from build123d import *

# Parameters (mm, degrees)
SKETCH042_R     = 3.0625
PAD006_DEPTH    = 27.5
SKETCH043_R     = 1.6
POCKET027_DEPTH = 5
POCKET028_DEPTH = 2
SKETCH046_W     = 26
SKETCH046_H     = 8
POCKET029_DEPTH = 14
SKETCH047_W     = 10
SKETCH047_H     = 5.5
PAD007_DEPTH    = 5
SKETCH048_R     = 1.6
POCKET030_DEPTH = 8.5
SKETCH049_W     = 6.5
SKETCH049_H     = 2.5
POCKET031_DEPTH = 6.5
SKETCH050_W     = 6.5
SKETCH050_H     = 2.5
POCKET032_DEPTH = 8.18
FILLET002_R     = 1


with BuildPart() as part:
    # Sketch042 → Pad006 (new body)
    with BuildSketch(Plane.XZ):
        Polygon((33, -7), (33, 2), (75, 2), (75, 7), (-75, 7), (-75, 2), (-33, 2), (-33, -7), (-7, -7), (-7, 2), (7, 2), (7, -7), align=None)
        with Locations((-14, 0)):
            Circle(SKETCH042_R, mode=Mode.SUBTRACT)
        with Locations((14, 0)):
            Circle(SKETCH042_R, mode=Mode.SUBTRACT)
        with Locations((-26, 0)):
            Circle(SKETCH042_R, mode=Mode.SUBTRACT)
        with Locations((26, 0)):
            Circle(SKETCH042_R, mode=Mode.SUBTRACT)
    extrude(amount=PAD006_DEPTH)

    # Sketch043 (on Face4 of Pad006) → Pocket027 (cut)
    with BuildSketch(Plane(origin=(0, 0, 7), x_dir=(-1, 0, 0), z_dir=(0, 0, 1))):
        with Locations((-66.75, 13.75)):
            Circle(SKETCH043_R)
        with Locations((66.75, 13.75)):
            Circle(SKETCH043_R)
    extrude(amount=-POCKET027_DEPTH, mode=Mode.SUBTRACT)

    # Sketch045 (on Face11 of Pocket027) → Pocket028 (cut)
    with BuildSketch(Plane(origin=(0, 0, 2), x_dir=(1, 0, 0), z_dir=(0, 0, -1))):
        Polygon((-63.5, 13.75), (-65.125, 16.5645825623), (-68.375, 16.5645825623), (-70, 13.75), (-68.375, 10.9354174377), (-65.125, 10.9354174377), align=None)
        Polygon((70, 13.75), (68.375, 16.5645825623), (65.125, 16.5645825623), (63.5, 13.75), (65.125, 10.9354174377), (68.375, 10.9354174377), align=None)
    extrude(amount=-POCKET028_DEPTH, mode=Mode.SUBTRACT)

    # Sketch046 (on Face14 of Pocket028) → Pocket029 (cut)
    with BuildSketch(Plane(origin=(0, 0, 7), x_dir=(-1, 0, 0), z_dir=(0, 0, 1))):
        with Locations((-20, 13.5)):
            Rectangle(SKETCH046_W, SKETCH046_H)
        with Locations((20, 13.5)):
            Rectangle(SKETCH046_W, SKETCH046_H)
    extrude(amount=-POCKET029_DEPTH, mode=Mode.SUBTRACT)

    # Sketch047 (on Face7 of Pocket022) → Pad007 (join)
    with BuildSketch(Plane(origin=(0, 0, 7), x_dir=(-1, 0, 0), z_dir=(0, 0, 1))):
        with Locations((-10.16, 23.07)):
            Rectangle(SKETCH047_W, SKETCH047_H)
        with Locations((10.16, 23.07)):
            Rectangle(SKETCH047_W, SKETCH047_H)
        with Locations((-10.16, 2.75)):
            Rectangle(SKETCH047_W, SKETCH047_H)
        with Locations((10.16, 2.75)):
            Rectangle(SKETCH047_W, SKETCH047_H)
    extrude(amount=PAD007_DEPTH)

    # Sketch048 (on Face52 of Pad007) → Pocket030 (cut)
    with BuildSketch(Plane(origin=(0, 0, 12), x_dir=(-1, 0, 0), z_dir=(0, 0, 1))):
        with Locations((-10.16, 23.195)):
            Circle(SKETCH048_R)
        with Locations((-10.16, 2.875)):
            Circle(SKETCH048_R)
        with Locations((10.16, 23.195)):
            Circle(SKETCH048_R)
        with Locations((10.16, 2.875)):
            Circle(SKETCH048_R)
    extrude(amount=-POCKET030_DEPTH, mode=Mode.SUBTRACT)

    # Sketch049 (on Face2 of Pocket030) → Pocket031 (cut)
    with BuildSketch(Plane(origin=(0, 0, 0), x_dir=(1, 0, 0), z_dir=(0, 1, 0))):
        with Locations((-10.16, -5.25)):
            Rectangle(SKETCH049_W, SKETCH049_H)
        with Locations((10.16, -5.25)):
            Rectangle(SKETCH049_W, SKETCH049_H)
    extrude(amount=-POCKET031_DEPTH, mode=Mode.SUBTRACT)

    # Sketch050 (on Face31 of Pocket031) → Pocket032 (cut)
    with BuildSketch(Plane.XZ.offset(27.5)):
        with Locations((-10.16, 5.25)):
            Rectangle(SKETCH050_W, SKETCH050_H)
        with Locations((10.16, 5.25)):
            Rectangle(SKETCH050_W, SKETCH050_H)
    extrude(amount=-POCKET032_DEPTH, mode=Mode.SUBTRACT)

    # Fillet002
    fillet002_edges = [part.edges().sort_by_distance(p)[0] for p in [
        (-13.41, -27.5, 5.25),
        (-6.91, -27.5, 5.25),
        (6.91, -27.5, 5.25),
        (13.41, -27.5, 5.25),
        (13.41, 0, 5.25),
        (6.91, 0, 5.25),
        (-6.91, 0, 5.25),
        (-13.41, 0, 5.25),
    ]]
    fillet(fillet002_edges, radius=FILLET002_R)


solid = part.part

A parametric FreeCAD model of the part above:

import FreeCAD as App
import Part
import Sketcher
from FreeCAD import Vector
Q = App.Units.Quantity


def edges_at(feature, points):
    """Names of the edges that pass closest to the given points."""
    edges = feature.Shape.Edges
    near = lambda p: min(range(len(edges)), key=lambda i: edges[i].distToShape(Part.Vertex(*p))[0])
    return sorted({f"Edge{near(p) + 1}" for p in points})


def add_polygon(sketch, points):
    """Adds a closed chain of lines whose ends are joined by coincident constraints."""
    first, n = sketch.GeometryCount, len(points)
    for a, b in zip(points, points[1:] + points[:1]):
        sketch.addGeometry(Part.LineSegment(App.Vector(*a, 0), App.Vector(*b, 0)), False)
    for i in range(n):
        sketch.addConstraint(Sketcher.Constraint("Coincident", first + i, 2, first + (i + 1) % n, 1))

doc = App.newDocument("Part")
params = doc.addObject("Spreadsheet::Sheet", "Params")
for row, (alias, value) in enumerate([
    ("sketch1_width", "42 mm"),
    ("sketch1_width2", "150 mm"),
    ("sketch1_width3", "26 mm"),
    ("sketch1_height", "9 mm"),
    ("sketch1_height2", "5 mm"),
    ("pad1_length", "27.5 mm"),
    ("sketch2_diameter", "3.2 mm"),
    ("pocket1_length", "5 mm"),
    ("sketch3_width", "3.25 mm"),
    ("pocket2_length", "2 mm"),
    ("sketch4_width", "26 mm"),
    ("sketch4_height", "8 mm"),
    ("pocket3_length", "14 mm"),
    ("sketch5_width", "10 mm"),
    ("sketch5_height", "5.5 mm"),
    ("pad2_length", "5 mm"),
    ("sketch6_diameter", "3.2 mm"),
    ("pocket4_length", "8.5 mm"),
    ("sketch7_width", "6.5 mm"),
    ("sketch7_height", "2.5 mm"),
    ("pocket5_length", "6.5 mm"),
    ("sketch8_width", "6.5 mm"),
    ("sketch8_height", "2.5 mm"),
    ("pocket6_length", "8.18 mm"),
    ("fillet_radius", "1 mm"),
], start=1):
    params.set(f"A{row}", alias)
    params.set(f"B{row}", "=" + value)
    params.setAlias(f"B{row}", alias)

body = doc.addObject("PartDesign::Body", "Body")

# Sketch on XZ plane
sketch1 = body.newObject("Sketcher::SketchObject", "Sketch")
sketch1.AttachmentSupport = (doc.getObject("XZ_Plane"), [""])
sketch1.MapMode = "FlatFace"
add_polygon(sketch1, [(33, -7), (33, 2), (75, 2), (75, 7), (-75, 7), (-75, 2), (-33, 2), (-33, -7), (-7, -7), (-7, 2), (7, 2), (7, -7)])  # lines 0-11
sketch1.addGeometry(Part.Circle(Vector(-26, 0, 0), Vector(0, 0, 1), 3.0625), False)  # 12
sketch1.addGeometry(Part.Circle(Vector(-14, 0, 0), Vector(0, 0, 1), 3.0625), False)  # 13
sketch1.addGeometry(Part.Circle(Vector(14, 0, 0), Vector(0, 0, 1), 3.0625), False)  # 14
sketch1.addGeometry(Part.Circle(Vector(26, 0, 0), Vector(0, 0, 1), 3.0625), False)  # 15
sketch1.addConstraint([
    Sketcher.Constraint("Vertical", 0),
    Sketcher.Constraint("Horizontal", 1),
    Sketcher.Constraint("Vertical", 2),
    Sketcher.Constraint("Horizontal", 3),
    Sketcher.Constraint("Vertical", 4),
    Sketcher.Constraint("Horizontal", 5),
    Sketcher.Constraint("Vertical", 6),
    Sketcher.Constraint("Horizontal", 7),
    Sketcher.Constraint("Vertical", 8),
    Sketcher.Constraint("Horizontal", 9),
    Sketcher.Constraint("Vertical", 10),
    Sketcher.Constraint("Horizontal", 11),
    Sketcher.Constraint("Equal", 12, 13),
    Sketcher.Constraint("Equal", 13, 14),
    Sketcher.Constraint("Equal", 14, 15),
    Sketcher.Constraint("Symmetric", 13, 3, 14, 3, -1, 1),
    Sketcher.Constraint("Symmetric", 12, 3, 15, 3, -1, 1),
    Sketcher.Constraint("Symmetric", 1, 2, 4, 2, -2),
    Sketcher.Constraint("Symmetric", 7, 2, 10, 2, -2),
    Sketcher.Constraint("PointOnObject", 12, 3, -1),
    Sketcher.Constraint("PointOnObject", 13, 3, -1),
    Sketcher.Constraint("Horizontal", 5, 2, 8, 2),
    Sketcher.Constraint("Equal", 1, 5),
    Sketcher.Constraint("DistanceX", 1, 1, 1, 2, Q("42 mm")),
    Sketcher.Constraint("DistanceX", 3, 2, 3, 1, Q("150 mm")),
    Sketcher.Constraint("DistanceX", 7, 1, 7, 2, Q("26 mm")),
    Sketcher.Constraint("DistanceY", 0, 1, 0, 2, Q("9 mm")),
    Sketcher.Constraint("DistanceY", 2, 1, 2, 2, Q("5 mm")),
    Sketcher.Constraint("Diameter", 12, Q("6.125 mm")),
    Sketcher.Constraint("DistanceX", 12, 3, -1, 1, Q("26 mm")),
    Sketcher.Constraint("DistanceX", 13, 3, -1, 1, Q("14 mm")),
    Sketcher.Constraint("DistanceY", -1, 1, 0, 2, Q("2 mm")),
])
sketch1.setExpression("Constraints[35]", "Params.sketch1_width")
sketch1.setExpression("Constraints[36]", "Params.sketch1_width2")
sketch1.setExpression("Constraints[37]", "Params.sketch1_width3")
sketch1.setExpression("Constraints[38]", "Params.sketch1_height")
sketch1.setExpression("Constraints[39]", "Params.sketch1_height2")
pad1 = body.newObject("PartDesign::Pad", "Pad")
pad1.Profile = sketch1
pad1.setExpression("Length", "Params.pad1_length")

# Sketch on XY plane
sketch2 = body.newObject("Sketcher::SketchObject", "Sketch001")
sketch2.AttachmentSupport = (doc.getObject("XY_Plane"), [""])
sketch2.MapMode = "FlatFace"
sketch2.AttachmentOffset = App.Placement(Vector(0, 0, 7), App.Rotation())
sketch2.addGeometry([
    Part.Circle(Vector(66.75, -13.75, 0), Vector(0, 0, 1), 1.6),
    Part.Circle(Vector(-66.75, -13.75, 0), Vector(0, 0, 1), 1.6),
], False)
sketch2.addConstraint([
    Sketcher.Constraint("Equal", 0, 1),
    Sketcher.Constraint("Symmetric", 0, 3, 1, 3, -2),
    Sketcher.Constraint("Diameter", 0, Q("3.2 mm")),
    Sketcher.Constraint("DistanceX", 1, 3, 0, 3, Q("133.5 mm")),
    Sketcher.Constraint("DistanceY", 0, 3, -1, 1, Q("13.75 mm")),
])
sketch2.setExpression("Constraints[2]", "Params.sketch2_diameter")
pocket1 = body.newObject("PartDesign::Pocket", "Pocket")
pocket1.Profile = sketch2
pocket1.setExpression("Length", "Params.pocket1_length")

# Sketch on XY plane
sketch3 = body.newObject("Sketcher::SketchObject", "Sketch002")
sketch3.AttachmentSupport = (doc.getObject("XY_Plane"), [""])
sketch3.MapMode = "FlatFace"
sketch3.AttachmentOffset = App.Placement(Vector(0, 0, 2), App.Rotation())
add_polygon(sketch3, [(-63.5, -13.75), (-65.125, -16.564583), (-68.375, -16.564583), (-70, -13.75), (-68.375, -10.935417), (-65.125, -10.935417)])  # lines 0-5
add_polygon(sketch3, [(70, -13.75), (68.375, -16.564583), (65.125, -16.564583), (63.5, -13.75), (65.125, -10.935417), (68.375, -10.935417)])  # lines 6-11
sketch3.addConstraint([
    Sketcher.Constraint("Horizontal", 1),
    Sketcher.Constraint("Horizontal", 4),
    Sketcher.Constraint("Horizontal", 7),
    Sketcher.Constraint("Horizontal", 10),
    Sketcher.Constraint("Symmetric", 1, 2, 6, 2, -2),
    Sketcher.Constraint("Symmetric", 5, 2, 8, 2, -2),
    Sketcher.Constraint("Symmetric", 4, 2, 9, 2, -2),
    Sketcher.Constraint("Symmetric", 2, 2, 11, 2, -2),
    Sketcher.Constraint("Parallel", 0, 3),
    Sketcher.Constraint("Parallel", 2, 5),
    Sketcher.Constraint("Parallel", 3, 6),
    Sketcher.Constraint("Parallel", 5, 8),
    Sketcher.Constraint("Parallel", 8, 11),
    Sketcher.Constraint("Horizontal", 2, 2, 5, 2),
    Sketcher.Constraint("Vertical", 1, 2, 3, 2),
    Sketcher.Constraint("Angle", 0, Q("-120 deg")),
    Sketcher.Constraint("DistanceX", 2, 2, -1, 1, Q("70 mm")),
    Sketcher.Constraint("DistanceX", 5, 2, 8, 2, Q("127 mm")),
    Sketcher.Constraint("DistanceX", 1, 2, 1, 1, Q("3.25 mm")),
    Sketcher.Constraint("DistanceY", 2, 2, -1, 1, Q("13.75 mm")),
])
sketch3.setExpression("Constraints[30]", "Params.sketch3_width")
pocket2 = body.newObject("PartDesign::Pocket", "Pocket001")
pocket2.Profile = sketch3
pocket2.setExpression("Length", "Params.pocket2_length")
pocket2.Reversed = True

# Sketch on XY plane
sketch4 = body.newObject("Sketcher::SketchObject", "Sketch003")
sketch4.AttachmentSupport = (doc.getObject("XY_Plane"), [""])
sketch4.MapMode = "FlatFace"
sketch4.AttachmentOffset = App.Placement(Vector(0, 0, 7), App.Rotation())
add_polygon(sketch4, [(33, -17.5), (33, -9.5), (7, -9.5), (7, -17.5)])  # lines 0-3
add_polygon(sketch4, [(-7, -17.5), (-7, -9.5), (-33, -9.5), (-33, -17.5)])  # lines 4-7
sketch4.addConstraint([
    Sketcher.Constraint("Vertical", 0),
    Sketcher.Constraint("Horizontal", 1),
    Sketcher.Constraint("Vertical", 2),
    Sketcher.Constraint("Horizontal", 3),
    Sketcher.Constraint("Vertical", 4),
    Sketcher.Constraint("Horizontal", 5),
    Sketcher.Constraint("Vertical", 6),
    Sketcher.Constraint("Horizontal", 7),
    Sketcher.Constraint("Symmetric", 1, 2, 4, 2, -2),
    Sketcher.Constraint("Symmetric", 3, 2, 6, 2, -2),
    Sketcher.Constraint("DistanceX", 1, 2, 1, 1, Q("26 mm")),
    Sketcher.Constraint("DistanceY", 0, 1, 0, 2, Q("8 mm")),
    Sketcher.Constraint("DistanceX", -1, 1, 0, 2, Q("33 mm")),
    Sketcher.Constraint("DistanceY", 0, 2, -1, 1, Q("9.5 mm")),
])
sketch4.setExpression("Constraints[18]", "Params.sketch4_width")
sketch4.setExpression("Constraints[19]", "Params.sketch4_height")
pocket3 = body.newObject("PartDesign::Pocket", "Pocket002")
pocket3.Profile = sketch4
pocket3.setExpression("Length", "Params.pocket3_length")

# Sketch on XY plane
sketch5 = body.newObject("Sketcher::SketchObject", "Sketch004")
sketch5.AttachmentSupport = (doc.getObject("XY_Plane"), [""])
sketch5.MapMode = "FlatFace"
sketch5.AttachmentOffset = App.Placement(Vector(0, 0, 7), App.Rotation())
add_polygon(sketch5, [(15.16, -25.82), (15.16, -20.32), (5.16, -20.32), (5.16, -25.82)])  # lines 0-3
add_polygon(sketch5, [(-5.16, -25.82), (-5.16, -20.32), (-15.16, -20.32), (-15.16, -25.82)])  # lines 4-7
add_polygon(sketch5, [(15.16, -5.5), (15.16, 0), (5.16, 0), (5.16, -5.5)])  # lines 8-11
add_polygon(sketch5, [(-5.16, -5.5), (-5.16, 0), (-15.16, 0), (-15.16, -5.5)])  # lines 12-15
sketch5.addConstraint([
    Sketcher.Constraint("Vertical", 0),
    Sketcher.Constraint("Horizontal", 1),
    Sketcher.Constraint("Vertical", 2),
    Sketcher.Constraint("Horizontal", 3),
    Sketcher.Constraint("Vertical", 4),
    Sketcher.Constraint("Horizontal", 5),
    Sketcher.Constraint("Vertical", 6),
    Sketcher.Constraint("Horizontal", 7),
    Sketcher.Constraint("Vertical", 8),
    Sketcher.Constraint("Horizontal", 9),
    Sketcher.Constraint("Vertical", 10),
    Sketcher.Constraint("Horizontal", 11),
    Sketcher.Constraint("Vertical", 12),
    Sketcher.Constraint("Horizontal", 13),
    Sketcher.Constraint("Vertical", 14),
    Sketcher.Constraint("Horizontal", 15),
    Sketcher.Constraint("Symmetric", 9, 2, 12, 2, -1, 1),
    Sketcher.Constraint("Symmetric", 1, 2, 4, 2, -2),
    Sketcher.Constraint("Symmetric", 3, 2, 6, 2, -2),
    Sketcher.Constraint("Symmetric", 8, 2, 13, 2, -2),
    Sketcher.Constraint("Horizontal", 11, 2, 14, 2),
    Sketcher.Constraint("Vertical", 3, 2, 8, 2),
    Sketcher.Constraint("Vertical", 2, 2, 9, 2),
    Sketcher.Constraint("Equal", 6, 8),
    Sketcher.Constraint("DistanceX", 1, 2, 1, 1, Q("10 mm")),
    Sketcher.Constraint("DistanceY", 0, 1, 0, 2, Q("5.5 mm")),
    Sketcher.Constraint("DistanceX", -1, 1, 0, 2, Q("15.16 mm")),
    Sketcher.Constraint("DistanceY", 0, 2, -1, 1, Q("20.32 mm")),
])
sketch5.setExpression("Constraints[40]", "Params.sketch5_width")
sketch5.setExpression("Constraints[41]", "Params.sketch5_height")
pad2 = body.newObject("PartDesign::Pad", "Pad001")
pad2.Profile = sketch5
pad2.setExpression("Length", "Params.pad2_length")

# Sketch on XY plane
sketch6 = body.newObject("Sketcher::SketchObject", "Sketch005")
sketch6.AttachmentSupport = (doc.getObject("XY_Plane"), [""])
sketch6.MapMode = "FlatFace"
sketch6.AttachmentOffset = App.Placement(Vector(0, 0, 12), App.Rotation())
sketch6.addGeometry([
    Part.Circle(Vector(10.16, -23.195, 0), Vector(0, 0, 1), 1.6),
    Part.Circle(Vector(10.16, -2.875, 0), Vector(0, 0, 1), 1.6),
    Part.Circle(Vector(-10.16, -23.195, 0), Vector(0, 0, 1), 1.6),
    Part.Circle(Vector(-10.16, -2.875, 0), Vector(0, 0, 1), 1.6),
], False)
sketch6.addConstraint([
    Sketcher.Constraint("Equal", 0, 1),
    Sketcher.Constraint("Equal", 1, 2),
    Sketcher.Constraint("Equal", 2, 3),
    Sketcher.Constraint("Symmetric", 0, 3, 2, 3, -2),
    Sketcher.Constraint("Symmetric", 1, 3, 3, 3, -2),
    Sketcher.Constraint("Vertical", 0, 3, 1, 3),
    Sketcher.Constraint("Diameter", 0, Q("3.2 mm")),
    Sketcher.Constraint("DistanceX", -1, 1, 0, 3, Q("10.16 mm")),
    Sketcher.Constraint("DistanceY", 0, 3, 1, 3, Q("20.32 mm")),
    Sketcher.Constraint("DistanceY", 0, 3, -1, 1, Q("23.195 mm")),
])
sketch6.setExpression("Constraints[6]", "Params.sketch6_diameter")
pocket4 = body.newObject("PartDesign::Pocket", "Pocket003")
pocket4.Profile = sketch6
pocket4.setExpression("Length", "Params.pocket4_length")

# Sketch on XZ plane
sketch7 = body.newObject("Sketcher::SketchObject", "Sketch006")
sketch7.AttachmentSupport = (doc.getObject("XZ_Plane"), [""])
sketch7.MapMode = "FlatFace"
add_polygon(sketch7, [(-13.41, 4), (-13.41, 6.5), (-6.91, 6.5), (-6.91, 4)])  # lines 0-3
add_polygon(sketch7, [(6.91, 4), (6.91, 6.5), (13.41, 6.5), (13.41, 4)])  # lines 4-7
sketch7.addConstraint([
    Sketcher.Constraint("Vertical", 0),
    Sketcher.Constraint("Horizontal", 1),
    Sketcher.Constraint("Vertical", 2),
    Sketcher.Constraint("Horizontal", 3),
    Sketcher.Constraint("Vertical", 4),
    Sketcher.Constraint("Horizontal", 5),
    Sketcher.Constraint("Vertical", 6),
    Sketcher.Constraint("Horizontal", 7),
    Sketcher.Constraint("Symmetric", 1, 2, 4, 2, -2),
    Sketcher.Constraint("Symmetric", 3, 2, 6, 2, -2),
    Sketcher.Constraint("DistanceX", 1, 1, 1, 2, Q("6.5 mm")),
    Sketcher.Constraint("DistanceY", 0, 1, 0, 2, Q("2.5 mm")),
    Sketcher.Constraint("DistanceY", -1, 1, 2, 2, Q("4 mm")),
    Sketcher.Constraint("DistanceX", 0, 2, -1, 1, Q("13.41 mm")),
])
sketch7.setExpression("Constraints[18]", "Params.sketch7_width")
sketch7.setExpression("Constraints[19]", "Params.sketch7_height")
pocket5 = body.newObject("PartDesign::Pocket", "Pocket004")
pocket5.Profile = sketch7
pocket5.setExpression("Length", "Params.pocket5_length")
pocket5.Reversed = True

# Sketch on XZ plane
sketch8 = body.newObject("Sketcher::SketchObject", "Sketch007")
sketch8.AttachmentSupport = (doc.getObject("XZ_Plane"), [""])
sketch8.MapMode = "FlatFace"
sketch8.AttachmentOffset = App.Placement(Vector(0, 0, 27.5), App.Rotation())
add_polygon(sketch8, [(-13.41, 6.5), (-13.41, 4), (-6.91, 4), (-6.91, 6.5)])  # lines 0-3
add_polygon(sketch8, [(6.91, 6.5), (6.91, 4), (13.41, 4), (13.41, 6.5)])  # lines 4-7
sketch8.addConstraint([
    Sketcher.Constraint("Vertical", 0),
    Sketcher.Constraint("Horizontal", 1),
    Sketcher.Constraint("Vertical", 2),
    Sketcher.Constraint("Horizontal", 3),
    Sketcher.Constraint("Vertical", 4),
    Sketcher.Constraint("Horizontal", 5),
    Sketcher.Constraint("Vertical", 6),
    Sketcher.Constraint("Horizontal", 7),
    Sketcher.Constraint("Symmetric", 1, 2, 4, 2, -2),
    Sketcher.Constraint("Symmetric", 3, 2, 6, 2, -2),
    Sketcher.Constraint("DistanceX", 1, 1, 1, 2, Q("6.5 mm")),
    Sketcher.Constraint("DistanceY", 0, 2, 0, 1, Q("2.5 mm")),
    Sketcher.Constraint("DistanceY", -1, 1, 0, 2, Q("4 mm")),
    Sketcher.Constraint("DistanceX", 0, 2, -1, 1, Q("13.41 mm")),
])
sketch8.setExpression("Constraints[18]", "Params.sketch8_width")
sketch8.setExpression("Constraints[19]", "Params.sketch8_height")
pocket6 = body.newObject("PartDesign::Pocket", "Pocket005")
pocket6.Profile = sketch8
pocket6.setExpression("Length", "Params.pocket6_length")
doc.recompute()

fillet = body.newObject("PartDesign::Fillet", "Fillet")
fillet.Base = (pocket6, edges_at(pocket6, [
    (-13.41, -27.5, 5.25),
    (-6.91, -27.5, 5.25),
    (6.91, -27.5, 5.25),
    (13.41, -27.5, 5.25),
    (13.41, 0, 5.25),
    (6.91, 0, 5.25),
    (-6.91, 0, 5.25),
    (-13.41, 0, 5.25),
]))
fillet.setExpression("Radius", "Params.fillet_radius")

doc.recompute()
